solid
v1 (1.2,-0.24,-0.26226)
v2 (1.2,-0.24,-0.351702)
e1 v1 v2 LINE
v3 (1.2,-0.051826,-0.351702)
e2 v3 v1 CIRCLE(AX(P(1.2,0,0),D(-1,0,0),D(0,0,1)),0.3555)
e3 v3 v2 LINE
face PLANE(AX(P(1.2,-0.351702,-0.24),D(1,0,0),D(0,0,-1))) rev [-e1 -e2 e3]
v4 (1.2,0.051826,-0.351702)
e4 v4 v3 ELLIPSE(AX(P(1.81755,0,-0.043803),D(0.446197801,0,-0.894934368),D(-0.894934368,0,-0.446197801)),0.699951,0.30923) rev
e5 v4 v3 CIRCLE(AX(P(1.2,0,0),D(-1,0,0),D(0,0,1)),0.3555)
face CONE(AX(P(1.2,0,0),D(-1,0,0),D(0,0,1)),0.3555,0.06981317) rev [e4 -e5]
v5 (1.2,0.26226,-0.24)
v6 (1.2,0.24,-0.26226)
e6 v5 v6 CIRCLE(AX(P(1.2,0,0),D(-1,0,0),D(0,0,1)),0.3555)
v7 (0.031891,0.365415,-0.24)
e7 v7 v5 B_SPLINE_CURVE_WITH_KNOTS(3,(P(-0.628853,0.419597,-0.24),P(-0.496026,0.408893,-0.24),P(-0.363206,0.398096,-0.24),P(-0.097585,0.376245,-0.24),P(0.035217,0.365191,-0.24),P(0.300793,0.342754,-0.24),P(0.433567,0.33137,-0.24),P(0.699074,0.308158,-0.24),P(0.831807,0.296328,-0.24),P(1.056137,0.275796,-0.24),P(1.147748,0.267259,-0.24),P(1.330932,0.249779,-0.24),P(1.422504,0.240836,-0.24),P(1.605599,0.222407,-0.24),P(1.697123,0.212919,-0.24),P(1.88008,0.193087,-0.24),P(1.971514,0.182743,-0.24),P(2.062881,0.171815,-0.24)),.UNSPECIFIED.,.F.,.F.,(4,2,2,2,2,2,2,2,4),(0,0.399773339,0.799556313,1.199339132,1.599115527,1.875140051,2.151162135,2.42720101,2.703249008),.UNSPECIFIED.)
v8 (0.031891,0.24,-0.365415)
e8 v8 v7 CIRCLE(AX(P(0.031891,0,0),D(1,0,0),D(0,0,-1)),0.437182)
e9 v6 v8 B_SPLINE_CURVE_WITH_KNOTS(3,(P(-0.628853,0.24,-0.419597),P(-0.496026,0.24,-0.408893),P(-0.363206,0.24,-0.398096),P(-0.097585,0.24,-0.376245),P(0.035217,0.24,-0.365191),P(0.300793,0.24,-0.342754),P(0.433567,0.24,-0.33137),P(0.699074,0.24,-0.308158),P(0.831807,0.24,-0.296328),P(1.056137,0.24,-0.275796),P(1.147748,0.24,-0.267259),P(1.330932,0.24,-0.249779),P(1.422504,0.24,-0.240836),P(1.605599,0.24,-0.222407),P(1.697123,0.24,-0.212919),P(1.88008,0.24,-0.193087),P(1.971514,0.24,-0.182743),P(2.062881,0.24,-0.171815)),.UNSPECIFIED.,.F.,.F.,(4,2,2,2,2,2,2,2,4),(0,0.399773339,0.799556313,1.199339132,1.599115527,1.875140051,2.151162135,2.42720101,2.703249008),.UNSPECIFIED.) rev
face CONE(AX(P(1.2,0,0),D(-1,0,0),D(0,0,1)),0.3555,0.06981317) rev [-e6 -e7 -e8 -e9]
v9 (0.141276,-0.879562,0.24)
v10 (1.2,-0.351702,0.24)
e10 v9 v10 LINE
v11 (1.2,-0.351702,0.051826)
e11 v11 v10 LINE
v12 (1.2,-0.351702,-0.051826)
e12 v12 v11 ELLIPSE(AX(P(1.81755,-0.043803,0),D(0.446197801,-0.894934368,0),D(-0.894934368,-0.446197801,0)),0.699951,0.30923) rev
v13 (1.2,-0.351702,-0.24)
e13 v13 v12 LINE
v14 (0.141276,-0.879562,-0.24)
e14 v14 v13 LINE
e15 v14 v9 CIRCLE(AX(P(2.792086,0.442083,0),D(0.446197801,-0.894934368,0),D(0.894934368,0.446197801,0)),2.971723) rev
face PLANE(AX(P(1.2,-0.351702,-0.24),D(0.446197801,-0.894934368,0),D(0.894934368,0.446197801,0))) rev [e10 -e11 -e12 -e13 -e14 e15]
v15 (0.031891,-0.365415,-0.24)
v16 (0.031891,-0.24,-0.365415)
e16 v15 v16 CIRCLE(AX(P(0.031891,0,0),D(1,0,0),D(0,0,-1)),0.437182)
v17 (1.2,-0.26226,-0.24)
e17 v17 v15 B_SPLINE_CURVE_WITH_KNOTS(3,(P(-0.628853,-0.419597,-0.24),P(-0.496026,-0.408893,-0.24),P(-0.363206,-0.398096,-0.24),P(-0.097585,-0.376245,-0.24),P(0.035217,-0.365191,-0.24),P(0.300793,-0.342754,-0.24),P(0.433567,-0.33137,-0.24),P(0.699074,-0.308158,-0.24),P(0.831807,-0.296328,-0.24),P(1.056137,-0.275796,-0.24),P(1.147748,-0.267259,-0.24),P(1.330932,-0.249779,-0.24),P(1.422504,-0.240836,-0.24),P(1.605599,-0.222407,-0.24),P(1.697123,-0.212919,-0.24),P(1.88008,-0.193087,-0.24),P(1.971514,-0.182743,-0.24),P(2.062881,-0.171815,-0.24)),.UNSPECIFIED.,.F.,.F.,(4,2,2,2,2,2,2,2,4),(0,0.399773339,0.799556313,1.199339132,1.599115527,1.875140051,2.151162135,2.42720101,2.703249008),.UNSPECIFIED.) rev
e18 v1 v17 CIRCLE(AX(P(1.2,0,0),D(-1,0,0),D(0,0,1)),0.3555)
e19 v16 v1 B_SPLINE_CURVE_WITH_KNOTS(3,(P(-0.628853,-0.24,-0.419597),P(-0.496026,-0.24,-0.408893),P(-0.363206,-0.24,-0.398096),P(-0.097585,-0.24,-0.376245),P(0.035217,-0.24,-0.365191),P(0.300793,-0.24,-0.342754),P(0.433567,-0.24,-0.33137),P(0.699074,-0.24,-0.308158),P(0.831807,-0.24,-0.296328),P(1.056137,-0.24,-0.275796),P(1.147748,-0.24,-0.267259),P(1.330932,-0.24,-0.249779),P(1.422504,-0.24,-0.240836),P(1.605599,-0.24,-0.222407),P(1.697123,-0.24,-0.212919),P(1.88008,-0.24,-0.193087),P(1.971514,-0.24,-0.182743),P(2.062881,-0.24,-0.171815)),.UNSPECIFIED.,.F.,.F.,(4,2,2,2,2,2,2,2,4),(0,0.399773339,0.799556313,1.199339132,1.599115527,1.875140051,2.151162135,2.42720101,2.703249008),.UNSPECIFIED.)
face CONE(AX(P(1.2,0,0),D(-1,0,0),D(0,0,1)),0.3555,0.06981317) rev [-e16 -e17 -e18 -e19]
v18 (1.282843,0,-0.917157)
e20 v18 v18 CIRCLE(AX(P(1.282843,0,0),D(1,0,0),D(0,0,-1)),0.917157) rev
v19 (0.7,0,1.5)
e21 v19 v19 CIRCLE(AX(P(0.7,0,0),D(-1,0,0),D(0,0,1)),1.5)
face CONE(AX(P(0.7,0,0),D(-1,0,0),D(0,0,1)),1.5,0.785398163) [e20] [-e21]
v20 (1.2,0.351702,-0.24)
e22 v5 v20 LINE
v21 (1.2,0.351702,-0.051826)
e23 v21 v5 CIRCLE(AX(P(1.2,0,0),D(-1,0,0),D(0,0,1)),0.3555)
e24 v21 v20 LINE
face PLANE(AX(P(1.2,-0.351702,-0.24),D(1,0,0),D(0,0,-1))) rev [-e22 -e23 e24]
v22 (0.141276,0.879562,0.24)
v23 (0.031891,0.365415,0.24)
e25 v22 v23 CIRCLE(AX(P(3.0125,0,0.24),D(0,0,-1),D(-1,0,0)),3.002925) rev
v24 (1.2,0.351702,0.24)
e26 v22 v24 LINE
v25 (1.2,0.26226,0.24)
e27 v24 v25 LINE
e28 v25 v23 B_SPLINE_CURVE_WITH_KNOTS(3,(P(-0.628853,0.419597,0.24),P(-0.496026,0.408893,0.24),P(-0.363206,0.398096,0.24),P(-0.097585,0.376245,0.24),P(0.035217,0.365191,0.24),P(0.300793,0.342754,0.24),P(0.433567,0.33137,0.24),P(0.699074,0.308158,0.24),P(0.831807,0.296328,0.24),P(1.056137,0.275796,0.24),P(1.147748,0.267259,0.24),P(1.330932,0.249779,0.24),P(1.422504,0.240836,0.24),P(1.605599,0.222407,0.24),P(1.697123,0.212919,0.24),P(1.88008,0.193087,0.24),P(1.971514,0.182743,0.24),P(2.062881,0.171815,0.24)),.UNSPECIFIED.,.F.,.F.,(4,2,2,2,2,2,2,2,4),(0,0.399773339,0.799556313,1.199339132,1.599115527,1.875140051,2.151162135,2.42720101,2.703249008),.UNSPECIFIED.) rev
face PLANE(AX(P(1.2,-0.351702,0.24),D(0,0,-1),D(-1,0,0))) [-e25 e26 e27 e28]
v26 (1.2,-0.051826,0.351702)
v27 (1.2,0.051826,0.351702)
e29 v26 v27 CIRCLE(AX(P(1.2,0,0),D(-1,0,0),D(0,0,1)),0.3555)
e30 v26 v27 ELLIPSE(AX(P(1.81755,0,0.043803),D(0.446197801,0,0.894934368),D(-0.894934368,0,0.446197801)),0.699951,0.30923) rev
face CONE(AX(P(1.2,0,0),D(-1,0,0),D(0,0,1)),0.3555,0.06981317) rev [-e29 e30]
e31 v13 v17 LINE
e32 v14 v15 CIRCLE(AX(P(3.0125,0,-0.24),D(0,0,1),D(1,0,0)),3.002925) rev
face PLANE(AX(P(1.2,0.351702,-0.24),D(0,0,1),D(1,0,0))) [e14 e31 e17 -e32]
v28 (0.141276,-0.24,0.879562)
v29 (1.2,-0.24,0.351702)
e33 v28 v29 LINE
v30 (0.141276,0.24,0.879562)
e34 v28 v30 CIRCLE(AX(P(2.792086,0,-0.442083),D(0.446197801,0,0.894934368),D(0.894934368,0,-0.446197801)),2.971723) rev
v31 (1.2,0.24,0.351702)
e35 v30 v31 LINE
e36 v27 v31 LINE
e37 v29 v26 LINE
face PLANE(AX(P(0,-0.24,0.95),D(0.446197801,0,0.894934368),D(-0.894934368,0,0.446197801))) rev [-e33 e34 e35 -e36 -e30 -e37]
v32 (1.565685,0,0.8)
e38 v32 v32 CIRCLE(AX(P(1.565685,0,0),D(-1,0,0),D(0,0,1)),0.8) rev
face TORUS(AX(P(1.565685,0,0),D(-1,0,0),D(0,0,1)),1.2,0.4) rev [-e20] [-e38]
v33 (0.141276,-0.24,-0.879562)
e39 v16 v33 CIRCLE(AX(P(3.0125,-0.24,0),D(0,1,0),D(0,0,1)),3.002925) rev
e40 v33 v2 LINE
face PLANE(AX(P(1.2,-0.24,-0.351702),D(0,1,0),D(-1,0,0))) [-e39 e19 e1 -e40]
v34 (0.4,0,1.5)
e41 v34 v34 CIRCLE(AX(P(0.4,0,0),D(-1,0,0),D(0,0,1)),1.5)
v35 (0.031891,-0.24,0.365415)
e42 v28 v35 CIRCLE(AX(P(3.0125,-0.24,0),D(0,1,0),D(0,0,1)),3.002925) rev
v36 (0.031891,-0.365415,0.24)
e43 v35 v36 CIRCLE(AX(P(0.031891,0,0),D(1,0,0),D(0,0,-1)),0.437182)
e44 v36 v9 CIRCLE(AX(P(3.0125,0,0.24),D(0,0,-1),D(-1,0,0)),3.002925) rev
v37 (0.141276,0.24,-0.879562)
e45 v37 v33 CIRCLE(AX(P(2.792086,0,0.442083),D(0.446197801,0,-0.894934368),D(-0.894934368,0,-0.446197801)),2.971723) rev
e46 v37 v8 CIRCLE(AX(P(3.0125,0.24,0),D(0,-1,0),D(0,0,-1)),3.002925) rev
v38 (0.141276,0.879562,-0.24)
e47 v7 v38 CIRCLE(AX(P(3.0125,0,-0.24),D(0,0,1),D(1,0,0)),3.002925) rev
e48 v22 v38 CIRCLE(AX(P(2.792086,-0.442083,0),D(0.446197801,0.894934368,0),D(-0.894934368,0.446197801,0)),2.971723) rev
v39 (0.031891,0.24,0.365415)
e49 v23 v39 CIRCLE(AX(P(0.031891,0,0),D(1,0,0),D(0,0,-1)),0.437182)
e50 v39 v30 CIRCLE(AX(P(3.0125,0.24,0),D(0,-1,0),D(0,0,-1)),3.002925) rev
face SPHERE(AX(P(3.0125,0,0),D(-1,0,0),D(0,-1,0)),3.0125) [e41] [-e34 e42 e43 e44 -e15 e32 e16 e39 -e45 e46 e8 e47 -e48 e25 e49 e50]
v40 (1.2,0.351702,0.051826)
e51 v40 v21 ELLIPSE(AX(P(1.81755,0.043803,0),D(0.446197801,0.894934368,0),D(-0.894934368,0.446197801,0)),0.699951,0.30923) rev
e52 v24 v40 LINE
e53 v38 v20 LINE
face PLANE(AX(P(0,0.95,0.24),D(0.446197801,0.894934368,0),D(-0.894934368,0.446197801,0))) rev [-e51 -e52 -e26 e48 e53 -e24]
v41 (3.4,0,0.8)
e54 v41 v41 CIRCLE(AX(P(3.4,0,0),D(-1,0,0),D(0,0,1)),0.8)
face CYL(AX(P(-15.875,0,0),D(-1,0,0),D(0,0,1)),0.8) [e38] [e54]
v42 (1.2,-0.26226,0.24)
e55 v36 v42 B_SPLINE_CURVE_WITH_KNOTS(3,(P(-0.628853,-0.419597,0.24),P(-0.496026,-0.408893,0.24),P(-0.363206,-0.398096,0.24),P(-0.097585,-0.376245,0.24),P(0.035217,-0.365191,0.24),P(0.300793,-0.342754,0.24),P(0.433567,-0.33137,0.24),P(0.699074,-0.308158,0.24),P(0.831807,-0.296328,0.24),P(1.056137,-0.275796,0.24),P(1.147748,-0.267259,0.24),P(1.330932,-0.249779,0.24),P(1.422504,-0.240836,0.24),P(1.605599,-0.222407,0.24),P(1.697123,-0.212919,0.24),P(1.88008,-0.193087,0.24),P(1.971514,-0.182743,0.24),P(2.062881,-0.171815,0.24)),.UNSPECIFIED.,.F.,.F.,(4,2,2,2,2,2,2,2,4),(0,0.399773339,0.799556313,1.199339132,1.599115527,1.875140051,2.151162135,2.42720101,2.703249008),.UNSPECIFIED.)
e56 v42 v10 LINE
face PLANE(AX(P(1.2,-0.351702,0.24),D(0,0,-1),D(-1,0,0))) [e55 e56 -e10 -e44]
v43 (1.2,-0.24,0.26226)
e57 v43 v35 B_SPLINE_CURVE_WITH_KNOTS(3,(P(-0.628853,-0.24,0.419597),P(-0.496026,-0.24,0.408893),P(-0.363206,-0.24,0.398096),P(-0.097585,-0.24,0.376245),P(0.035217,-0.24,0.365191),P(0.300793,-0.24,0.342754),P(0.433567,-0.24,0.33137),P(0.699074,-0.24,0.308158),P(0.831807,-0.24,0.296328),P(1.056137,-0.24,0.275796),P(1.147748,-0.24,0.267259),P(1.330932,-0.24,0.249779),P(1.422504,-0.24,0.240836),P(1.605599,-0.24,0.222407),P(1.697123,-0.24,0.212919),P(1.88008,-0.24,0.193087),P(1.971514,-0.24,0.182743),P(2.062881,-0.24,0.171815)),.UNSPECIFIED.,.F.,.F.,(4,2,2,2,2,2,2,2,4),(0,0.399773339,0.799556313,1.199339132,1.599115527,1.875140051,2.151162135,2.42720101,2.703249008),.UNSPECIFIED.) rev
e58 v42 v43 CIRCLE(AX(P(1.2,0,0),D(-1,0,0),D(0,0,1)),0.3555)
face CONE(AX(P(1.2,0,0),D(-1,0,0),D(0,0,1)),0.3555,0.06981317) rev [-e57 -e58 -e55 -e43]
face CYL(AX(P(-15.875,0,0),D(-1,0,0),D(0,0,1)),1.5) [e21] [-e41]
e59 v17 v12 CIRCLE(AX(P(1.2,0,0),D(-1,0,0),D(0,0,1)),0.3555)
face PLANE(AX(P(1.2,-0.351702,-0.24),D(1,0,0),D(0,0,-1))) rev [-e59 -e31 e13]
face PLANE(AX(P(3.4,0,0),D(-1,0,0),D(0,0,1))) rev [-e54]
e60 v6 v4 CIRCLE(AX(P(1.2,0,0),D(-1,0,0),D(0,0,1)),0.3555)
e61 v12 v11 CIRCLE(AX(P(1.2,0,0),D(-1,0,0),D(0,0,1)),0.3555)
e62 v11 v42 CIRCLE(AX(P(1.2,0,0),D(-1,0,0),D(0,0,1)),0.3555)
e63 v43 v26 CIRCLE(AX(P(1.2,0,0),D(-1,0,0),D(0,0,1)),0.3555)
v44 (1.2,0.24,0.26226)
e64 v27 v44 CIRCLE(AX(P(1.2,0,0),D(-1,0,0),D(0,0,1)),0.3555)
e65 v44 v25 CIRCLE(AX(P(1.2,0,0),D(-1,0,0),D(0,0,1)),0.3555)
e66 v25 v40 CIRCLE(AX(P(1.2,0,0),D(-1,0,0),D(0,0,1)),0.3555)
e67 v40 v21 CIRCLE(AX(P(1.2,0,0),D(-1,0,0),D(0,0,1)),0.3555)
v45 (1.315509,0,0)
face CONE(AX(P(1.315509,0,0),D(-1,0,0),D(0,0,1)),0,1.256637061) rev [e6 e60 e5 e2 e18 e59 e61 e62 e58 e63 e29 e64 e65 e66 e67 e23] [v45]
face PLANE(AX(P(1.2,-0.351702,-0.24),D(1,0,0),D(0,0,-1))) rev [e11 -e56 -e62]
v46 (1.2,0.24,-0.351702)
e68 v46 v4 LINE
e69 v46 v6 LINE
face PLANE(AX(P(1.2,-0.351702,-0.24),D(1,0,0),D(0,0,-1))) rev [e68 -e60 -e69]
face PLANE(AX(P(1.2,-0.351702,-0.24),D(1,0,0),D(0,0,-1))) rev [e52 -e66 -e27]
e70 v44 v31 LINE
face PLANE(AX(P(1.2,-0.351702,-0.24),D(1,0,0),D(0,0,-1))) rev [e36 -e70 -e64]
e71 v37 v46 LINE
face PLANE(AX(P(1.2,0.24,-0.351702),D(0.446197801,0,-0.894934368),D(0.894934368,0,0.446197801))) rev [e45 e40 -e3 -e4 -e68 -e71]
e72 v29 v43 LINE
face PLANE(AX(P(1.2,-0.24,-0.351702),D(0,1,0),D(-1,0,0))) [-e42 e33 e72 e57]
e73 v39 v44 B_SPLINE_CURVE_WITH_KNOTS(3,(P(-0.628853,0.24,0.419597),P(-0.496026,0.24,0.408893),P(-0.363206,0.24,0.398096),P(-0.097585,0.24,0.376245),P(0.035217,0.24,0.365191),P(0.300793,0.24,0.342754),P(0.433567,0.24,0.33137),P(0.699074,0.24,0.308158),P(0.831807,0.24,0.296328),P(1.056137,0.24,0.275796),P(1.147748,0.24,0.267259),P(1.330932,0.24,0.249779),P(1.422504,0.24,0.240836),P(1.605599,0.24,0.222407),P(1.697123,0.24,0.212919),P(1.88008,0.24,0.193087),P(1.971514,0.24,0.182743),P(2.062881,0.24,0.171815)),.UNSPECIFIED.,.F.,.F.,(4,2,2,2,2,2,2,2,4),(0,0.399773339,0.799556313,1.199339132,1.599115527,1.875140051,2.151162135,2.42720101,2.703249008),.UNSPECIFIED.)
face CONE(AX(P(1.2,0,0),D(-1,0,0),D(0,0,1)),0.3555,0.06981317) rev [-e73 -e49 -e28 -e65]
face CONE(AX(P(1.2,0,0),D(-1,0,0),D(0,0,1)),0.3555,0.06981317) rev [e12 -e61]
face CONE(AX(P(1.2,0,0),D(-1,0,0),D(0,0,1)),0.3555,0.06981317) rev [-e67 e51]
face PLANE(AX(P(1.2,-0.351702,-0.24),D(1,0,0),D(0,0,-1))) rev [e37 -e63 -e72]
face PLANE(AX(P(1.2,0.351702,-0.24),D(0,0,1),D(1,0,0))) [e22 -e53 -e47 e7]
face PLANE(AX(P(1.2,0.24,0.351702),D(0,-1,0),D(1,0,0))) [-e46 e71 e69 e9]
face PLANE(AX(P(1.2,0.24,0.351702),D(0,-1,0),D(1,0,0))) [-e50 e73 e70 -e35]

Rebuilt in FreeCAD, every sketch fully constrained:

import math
import FreeCAD as App
import Part
import Sketcher
from FreeCAD import Vector
Q = App.Units.Quantity


def edges_at(feature, points):
    """Names of the edges that pass closest to the given points."""
    edges = feature.Shape.Edges
    near = lambda p: min(range(len(edges)), key=lambda i: edges[i].distToShape(Part.Vertex(*p))[0])
    return sorted({f"Edge{near(p) + 1}" for p in points})

doc = App.newDocument("Part")
body = doc.addObject("PartDesign::Body", "Body")

# Sketch on XY plane
sketch1 = body.newObject("Sketcher::SketchObject", "Sketch")
sketch1.AttachmentSupport = (doc.getObject("XY_Plane"), [""])
sketch1.MapMode = "FlatFace"
sketch1.addGeometry([
    Part.LineSegment(Vector(0, 0, 0), Vector(3.4, 0, 0)),  # 0
    Part.LineSegment(Vector(3.4, 0, 0), Vector(3.4, 0.8, 0)),  # 1
    Part.LineSegment(Vector(3.4, 0.8, 0), Vector(1.4, 0.8, 0)),  # 2
    Part.LineSegment(Vector(1.4, 0.8, 0), Vector(0.7, 1.5, 0)),  # 3
    Part.LineSegment(Vector(0.7, 1.5, 0), Vector(0.4, 1.5, 0)),  # 4
    Part.ArcOfCircle(Part.Circle(Vector(3.01, 0, 0), Vector(0, 0, 1), 3.01), math.radians(150), math.radians(180)),  # 5
], False)
sketch1.addConstraint([
    Sketcher.Constraint("Coincident", 0, 2, 1, 1),
    Sketcher.Constraint("Coincident", 1, 2, 2, 1),
    Sketcher.Constraint("Coincident", 2, 2, 3, 1),
    Sketcher.Constraint("Coincident", 3, 2, 4, 1),
    Sketcher.Constraint("Coincident", 4, 2, 5, 1),
    Sketcher.Constraint("Coincident", 5, 2, 0, 1),
    Sketcher.Constraint("Horizontal", 0),
    Sketcher.Constraint("Vertical", 1),
    Sketcher.Constraint("Horizontal", 2),
    Sketcher.Constraint("Horizontal", 4),
    Sketcher.Constraint("Coincident", 5, 2, -1, 1),
    Sketcher.Constraint("PointOnObject", 5, 3, -1),
    Sketcher.Constraint("DistanceX", 2, 2, 2, 1, Q("2 mm")),
    Sketcher.Constraint("Angle", 3, Q("135 deg")),
    Sketcher.Constraint("DistanceX", 0, 1, 0, 2, Q("3.4 mm")),
    Sketcher.Constraint("DistanceX", 4, 2, 4, 1, Q("0.3 mm")),
    Sketcher.Constraint("DistanceY", 1, 1, 1, 2, Q("0.8 mm")),
    Sketcher.Constraint("DistanceX", 4, 2, 2, 2, Q("1 mm")),
])
revolution = body.newObject("PartDesign::Revolution", "Revolution")
revolution.Profile = sketch1
revolution.ReferenceAxis = (sketch1, ["H_Axis"])
revolution.Angle = 360
doc.recompute()

fillet = body.newObject("PartDesign::Fillet", "Fillet")
fillet.Base = (revolution, edges_at(revolution, [(1.4, -0.8, 0)]))
fillet.Radius = 0.4

# Sketch on YZ plane
sketch2 = body.newObject("Sketcher::SketchObject", "Sketch001")
sketch2.AttachmentSupport = (doc.getObject("YZ_Plane"), [""])
sketch2.MapMode = "FlatFace"
sketch2.addGeometry([
    Part.LineSegment(Vector(0.95, 0.24, 0), Vector(-0.95, 0.24, 0)),
    Part.LineSegment(Vector(-0.95, 0.24, 0), Vector(-0.95, -0.24, 0)),
    Part.LineSegment(Vector(-0.95, -0.24, 0), Vector(0.95, -0.24, 0)),
    Part.LineSegment(Vector(0.95, -0.24, 0), Vector(0.95, 0.24, 0)),
], False)
sketch2.addConstraint([
    Sketcher.Constraint("Coincident", 0, 2, 1, 1),
    Sketcher.Constraint("Coincident", 1, 2, 2, 1),
    Sketcher.Constraint("Coincident", 2, 2, 3, 1),
    Sketcher.Constraint("Coincident", 3, 2, 0, 1),
    Sketcher.Constraint("Horizontal", 0),
    Sketcher.Constraint("Vertical", 1),
    Sketcher.Constraint("Horizontal", 2),
    Sketcher.Constraint("Vertical", 3),
    Sketcher.Constraint("Symmetric", 0, 2, 2, 2, -1, 1),
    Sketcher.Constraint("DistanceX", 0, 2, 0, 1, Q("1.9 mm")),
    Sketcher.Constraint("DistanceY", 1, 2, 1, 1, Q("0.48 mm")),
])

# Sketch on YZ plane
sketch3 = body.newObject("Sketcher::SketchObject", "Sketch002")
sketch3.AttachmentSupport = (doc.getObject("YZ_Plane"), [""])
sketch3.MapMode = "FlatFace"
sketch3.AttachmentOffset = App.Placement(Vector(0, 0, 1.2), App.Rotation())
sketch3.addGeometry([
    Part.LineSegment(Vector(0.35, 0.24, 0), Vector(-0.35, 0.24, 0)),
    Part.LineSegment(Vector(-0.35, 0.24, 0), Vector(-0.35, -0.24, 0)),
    Part.LineSegment(Vector(-0.35, -0.24, 0), Vector(0.35, -0.24, 0)),
    Part.LineSegment(Vector(0.35, -0.24, 0), Vector(0.35, 0.24, 0)),
], False)
sketch3.addConstraint([
    Sketcher.Constraint("Coincident", 0, 2, 1, 1),
    Sketcher.Constraint("Coincident", 1, 2, 2, 1),
    Sketcher.Constraint("Coincident", 2, 2, 3, 1),
    Sketcher.Constraint("Coincident", 3, 2, 0, 1),
    Sketcher.Constraint("Horizontal", 0),
    Sketcher.Constraint("Vertical", 1),
    Sketcher.Constraint("Horizontal", 2),
    Sketcher.Constraint("Vertical", 3),
    Sketcher.Constraint("Symmetric", 0, 2, 2, 2, -1, 1),
    Sketcher.Constraint("DistanceY", 1, 2, 1, 1, Q("0.48 mm")),
    Sketcher.Constraint("DistanceX", 0, 2, 0, 1, Q("0.703404 mm")),
])

subtractiveloft = body.newObject("PartDesign::SubtractiveLoft", "SubtractiveLoft")
subtractiveloft.Profile = sketch2
subtractiveloft.Sections = [sketch3]
doc.recompute()

polarpattern = body.newObject("PartDesign::PolarPattern", "PolarPattern")
polarpattern.Originals = [subtractiveloft]
polarpattern.Axis = (doc.getObject("X_Axis"), [""])
polarpattern.Angle = 90
polarpattern.Occurrences = 2
body.Tip = polarpattern

# Sketch on XY plane
sketch4 = body.newObject("Sketcher::SketchObject", "Sketch003")
sketch4.AttachmentSupport = (doc.getObject("XY_Plane"), [""])
sketch4.MapMode = "FlatFace"
sketch4.addGeometry([
    Part.LineSegment(Vector(0, 0.44, 0), Vector(0, 0, 0)),
    Part.LineSegment(Vector(0, 0, 0), Vector(1.32, 0, 0)),
    Part.LineSegment(Vector(1.32, 0, 0), Vector(1.2, 0.36, 0)),
    Part.LineSegment(Vector(1.2, 0.36, 0), Vector(0, 0.44, 0)),
], False)
sketch4.addConstraint([
    Sketcher.Constraint("Coincident", 0, 2, 1, 1),
    Sketcher.Constraint("Coincident", 1, 2, 2, 1),
    Sketcher.Constraint("Coincident", 2, 2, 3, 1),
    Sketcher.Constraint("Coincident", 3, 2, 0, 1),
    Sketcher.Constraint("Vertical", 0),
    Sketcher.Constraint("Horizontal", 1),
    Sketcher.Constraint("Coincident", 0, 2, -1, 1),
    Sketcher.Constraint("Angle", 2, Q("108 deg")),
    Sketcher.Constraint("Angle", 3, Q("176 deg")),
    Sketcher.Constraint("DistanceX", -1, 1, 2, 2, Q("1.2 mm")),
    Sketcher.Constraint("DistanceX", 1, 1, 1, 2, Q("1.315509 mm")),
])
groove = body.newObject("PartDesign::Groove", "Groove")
groove.Profile = sketch4
groove.ReferenceAxis = (sketch4, ["H_Axis"])
groove.Angle = 360

doc.recompute()
